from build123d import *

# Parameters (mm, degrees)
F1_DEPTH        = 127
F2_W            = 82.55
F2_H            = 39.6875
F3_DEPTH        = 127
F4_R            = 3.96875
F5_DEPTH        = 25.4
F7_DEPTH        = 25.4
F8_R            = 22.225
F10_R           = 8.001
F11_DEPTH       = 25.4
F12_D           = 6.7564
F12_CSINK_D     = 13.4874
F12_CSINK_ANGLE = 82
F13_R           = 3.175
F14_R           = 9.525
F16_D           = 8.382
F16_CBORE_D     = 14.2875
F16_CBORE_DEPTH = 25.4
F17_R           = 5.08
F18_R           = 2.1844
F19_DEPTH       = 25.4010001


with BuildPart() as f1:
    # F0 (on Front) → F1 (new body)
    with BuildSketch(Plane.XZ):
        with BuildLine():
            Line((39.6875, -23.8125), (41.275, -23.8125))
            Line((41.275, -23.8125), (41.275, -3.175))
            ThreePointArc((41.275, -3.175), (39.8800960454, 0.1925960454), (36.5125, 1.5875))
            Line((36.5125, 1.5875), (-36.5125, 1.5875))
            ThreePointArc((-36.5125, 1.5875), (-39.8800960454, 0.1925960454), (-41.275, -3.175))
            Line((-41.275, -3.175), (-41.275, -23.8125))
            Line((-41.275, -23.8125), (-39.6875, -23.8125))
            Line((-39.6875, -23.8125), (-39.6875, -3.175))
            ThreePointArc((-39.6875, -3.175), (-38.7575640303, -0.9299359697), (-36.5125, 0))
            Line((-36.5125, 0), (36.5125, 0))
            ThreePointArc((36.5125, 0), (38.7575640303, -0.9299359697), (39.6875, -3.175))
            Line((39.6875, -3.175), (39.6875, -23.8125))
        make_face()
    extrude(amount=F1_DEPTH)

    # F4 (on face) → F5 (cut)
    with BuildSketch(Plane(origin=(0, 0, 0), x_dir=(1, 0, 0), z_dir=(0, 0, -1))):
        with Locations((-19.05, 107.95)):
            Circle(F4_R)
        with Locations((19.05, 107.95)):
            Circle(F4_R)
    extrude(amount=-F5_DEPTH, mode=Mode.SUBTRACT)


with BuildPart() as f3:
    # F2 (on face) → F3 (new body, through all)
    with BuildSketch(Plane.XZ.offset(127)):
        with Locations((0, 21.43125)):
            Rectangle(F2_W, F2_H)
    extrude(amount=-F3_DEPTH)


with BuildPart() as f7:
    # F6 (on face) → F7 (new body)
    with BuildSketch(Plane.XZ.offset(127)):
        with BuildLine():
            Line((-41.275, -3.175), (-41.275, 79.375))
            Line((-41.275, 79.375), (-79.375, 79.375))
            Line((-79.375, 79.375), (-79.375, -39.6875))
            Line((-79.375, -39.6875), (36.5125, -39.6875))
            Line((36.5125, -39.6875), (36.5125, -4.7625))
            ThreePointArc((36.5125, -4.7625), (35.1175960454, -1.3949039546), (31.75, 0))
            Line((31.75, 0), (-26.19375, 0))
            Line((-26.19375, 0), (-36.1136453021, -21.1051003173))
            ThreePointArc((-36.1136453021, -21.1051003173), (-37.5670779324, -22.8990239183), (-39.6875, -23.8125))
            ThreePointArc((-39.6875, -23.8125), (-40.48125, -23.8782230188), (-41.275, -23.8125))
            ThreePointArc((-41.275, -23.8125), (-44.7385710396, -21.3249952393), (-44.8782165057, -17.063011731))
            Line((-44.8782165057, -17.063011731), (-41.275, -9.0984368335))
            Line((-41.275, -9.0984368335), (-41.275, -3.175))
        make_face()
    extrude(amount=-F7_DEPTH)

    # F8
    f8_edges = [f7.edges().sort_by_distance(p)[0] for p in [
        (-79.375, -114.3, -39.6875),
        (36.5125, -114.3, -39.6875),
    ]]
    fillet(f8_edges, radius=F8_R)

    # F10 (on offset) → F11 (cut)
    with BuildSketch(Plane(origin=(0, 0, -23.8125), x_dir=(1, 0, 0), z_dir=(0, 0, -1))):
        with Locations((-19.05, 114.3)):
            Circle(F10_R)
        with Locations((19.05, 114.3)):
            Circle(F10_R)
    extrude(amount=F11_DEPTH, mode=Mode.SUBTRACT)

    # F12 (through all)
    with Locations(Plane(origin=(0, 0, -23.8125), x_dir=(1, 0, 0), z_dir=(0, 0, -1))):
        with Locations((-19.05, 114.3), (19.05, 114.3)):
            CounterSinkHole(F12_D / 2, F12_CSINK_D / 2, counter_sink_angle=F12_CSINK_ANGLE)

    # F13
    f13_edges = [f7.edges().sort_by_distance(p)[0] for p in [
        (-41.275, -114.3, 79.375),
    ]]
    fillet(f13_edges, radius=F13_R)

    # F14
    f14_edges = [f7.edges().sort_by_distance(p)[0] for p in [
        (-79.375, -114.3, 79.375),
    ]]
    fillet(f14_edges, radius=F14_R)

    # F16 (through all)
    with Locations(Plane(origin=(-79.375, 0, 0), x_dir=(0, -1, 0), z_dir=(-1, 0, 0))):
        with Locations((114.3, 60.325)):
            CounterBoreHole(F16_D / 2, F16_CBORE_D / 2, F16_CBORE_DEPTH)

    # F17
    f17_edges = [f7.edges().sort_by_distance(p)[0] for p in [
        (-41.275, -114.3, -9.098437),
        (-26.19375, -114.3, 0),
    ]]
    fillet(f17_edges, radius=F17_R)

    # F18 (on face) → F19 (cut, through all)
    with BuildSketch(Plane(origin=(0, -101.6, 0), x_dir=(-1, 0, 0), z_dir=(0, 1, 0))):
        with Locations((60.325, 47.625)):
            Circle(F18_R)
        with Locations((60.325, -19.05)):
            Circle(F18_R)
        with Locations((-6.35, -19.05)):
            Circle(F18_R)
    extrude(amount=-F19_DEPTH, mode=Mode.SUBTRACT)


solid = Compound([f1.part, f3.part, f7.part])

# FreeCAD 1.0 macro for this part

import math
import FreeCAD as App
import Part
import Sketcher
Q = App.Units.Quantity


def edges_at(feature, points):
    """Names of the edges that pass closest to the given points."""
    edges = feature.Shape.Edges
    near = lambda p: min(range(len(edges)), key=lambda i: edges[i].distToShape(Part.Vertex(*p))[0])
    return sorted({f"Edge{near(p) + 1}" for p in points})

doc = App.newDocument("Part")
body = doc.addObject("PartDesign::Body", "Body")

# Sketch on XZ plane
sketch1 = body.newObject("Sketcher::SketchObject", "Sketch")
sketch1.AttachmentSupport = (doc.getObject("XZ_Plane"), [""])
sketch1.MapMode = "FlatFace"
sketch1.addGeometry(Part.LineSegment(App.Vector(39.6875, -23.8125, 0), App.Vector(41.275, -23.8125, 0)), False)
sketch1.addGeometry(Part.LineSegment(App.Vector(41.275, -23.8125, 0), App.Vector(41.275, -3.175, 0)), False)
sketch1.addGeometry(Part.ArcOfCircle(Part.Circle(App.Vector(36.5125, -3.175, 0), App.Vector(0, 0, 1), 4.7625), math.radians(0), math.radians(90)), False)
sketch1.addGeometry(Part.LineSegment(App.Vector(36.5125, 1.5875, 0), App.Vector(-36.5125, 1.5875, 0)), False)
sketch1.addGeometry(Part.ArcOfCircle(Part.Circle(App.Vector(-36.5125, -3.175, 0), App.Vector(0, 0, 1), 4.7625), math.radians(90), math.radians(180)), False)
sketch1.addGeometry(Part.LineSegment(App.Vector(-41.275, -3.175, 0), App.Vector(-41.275, -23.8125, 0)), False)
sketch1.addGeometry(Part.LineSegment(App.Vector(-41.275, -23.8125, 0), App.Vector(-39.6875, -23.8125, 0)), False)
sketch1.addGeometry(Part.LineSegment(App.Vector(-39.6875, -23.8125, 0), App.Vector(-39.6875, -3.175, 0)), False)
sketch1.addGeometry(Part.ArcOfCircle(Part.Circle(App.Vector(-36.5125, -3.175, 0), App.Vector(0, 0, 1), 3.175), math.radians(90), math.radians(180)), False)
sketch1.addGeometry(Part.LineSegment(App.Vector(-36.5125, 0, 0), App.Vector(36.5125, 0, 0)), False)
sketch1.addGeometry(Part.ArcOfCircle(Part.Circle(App.Vector(36.5125, -3.175, 0), App.Vector(0, 0, 1), 3.175), math.radians(0), math.radians(90)), False)
sketch1.addGeometry(Part.LineSegment(App.Vector(39.6875, -3.175, 0), App.Vector(39.6875, -23.8125, 0)), False)
sketch1.addConstraint(Sketcher.Constraint("Coincident", 0, 2, 1, 1))
sketch1.addConstraint(Sketcher.Constraint("Tangent", 1, 2, 2, 1))
sketch1.addConstraint(Sketcher.Constraint("Tangent", 2, 2, 3, 1))
sketch1.addConstraint(Sketcher.Constraint("Tangent", 3, 2, 4, 1))
sketch1.addConstraint(Sketcher.Constraint("Tangent", 4, 2, 5, 1))
sketch1.addConstraint(Sketcher.Constraint("Coincident", 5, 2, 6, 1))
sketch1.addConstraint(Sketcher.Constraint("Coincident", 6, 2, 7, 1))
sketch1.addConstraint(Sketcher.Constraint("Tangent", 7, 2, 8, 2))
sketch1.addConstraint(Sketcher.Constraint("Tangent", 8, 1, 9, 1))
sketch1.addConstraint(Sketcher.Constraint("Tangent", 9, 2, 10, 2))
sketch1.addConstraint(Sketcher.Constraint("Tangent", 10, 1, 11, 1))
sketch1.addConstraint(Sketcher.Constraint("Coincident", 11, 2, 0, 1))
sketch1.addConstraint(Sketcher.Constraint("Horizontal", 0))
sketch1.addConstraint(Sketcher.Constraint("Vertical", 1))
sketch1.addConstraint(Sketcher.Constraint("Horizontal", 3))
sketch1.addConstraint(Sketcher.Constraint("Vertical", 5))
sketch1.addConstraint(Sketcher.Constraint("Horizontal", 6))
sketch1.addConstraint(Sketcher.Constraint("Vertical", 7))
sketch1.addConstraint(Sketcher.Constraint("Horizontal", 9))
sketch1.addConstraint(Sketcher.Constraint("Vertical", 11))
sketch1.addConstraint(Sketcher.Constraint("Coincident", 8, 3, 4, 3))
sketch1.addConstraint(Sketcher.Constraint("Coincident", 10, 3, 2, 3))
sketch1.addConstraint(Sketcher.Constraint("Equal", 2, 4))
sketch1.addConstraint(Sketcher.Constraint("Symmetric", 8, 1, 9, 2, -1, 1))
sketch1.addConstraint(Sketcher.Constraint("Horizontal", 0, 2, 5, 2))
sketch1.addConstraint(Sketcher.Constraint("Radius", 2, Q("0.1875 in")))
sketch1.addConstraint(Sketcher.Constraint("Radius", 8, Q("0.125 in")))
sketch1.addConstraint(Sketcher.Constraint("DistanceY", 0, 2, 2, 2, Q("1 in")))
sketch1.addConstraint(Sketcher.Constraint("DistanceX", 3, 2, 3, 1, Q("2.875 in")))
pad1 = body.newObject("PartDesign::Pad", "Pad")
pad1.Profile = sketch1
pad1.Length = Q("5 in")

# Sketch on XY plane
sketch2 = body.newObject("Sketcher::SketchObject", "Sketch001")
sketch2.AttachmentSupport = (doc.getObject("XY_Plane"), [""])
sketch2.MapMode = "FlatFace"
sketch2.addGeometry(Part.Circle(App.Vector(-19.05, -107.95, 0), App.Vector(0, 0, 1), 3.96875), False)
sketch2.addGeometry(Part.Circle(App.Vector(19.05, -107.95, 0), App.Vector(0, 0, 1), 3.96875), False)
sketch2.addConstraint(Sketcher.Constraint("Equal", 0, 1))
sketch2.addConstraint(Sketcher.Constraint("Symmetric", 0, 3, 1, 3, -2))
sketch2.addConstraint(Sketcher.Constraint("Diameter", 0, Q("0.3125 in")))
sketch2.addConstraint(Sketcher.Constraint("DistanceX", 0, 3, 1, 3, Q("1.5 in")))
sketch2.addConstraint(Sketcher.Constraint("DistanceY", 0, 3, -1, 1, Q("4.25 in")))
pocket1 = body.newObject("PartDesign::Pocket", "Pocket")
pocket1.Profile = sketch2
pocket1.Length = Q("1 in")
pocket1.Reversed = True
body2 = doc.addObject("PartDesign::Body", "Body001")

# Sketch on XZ plane
sketch3 = body2.newObject("Sketcher::SketchObject", "Sketch002")
sketch3.AttachmentSupport = (doc.getObject("XZ_Plane001"), [""])
sketch3.MapMode = "FlatFace"
sketch3.AttachmentOffset = App.Placement(App.Vector(0, 0, 5 * 25.4), App.Rotation())
sketch3.addGeometry(Part.LineSegment(App.Vector(-41.275, 41.275, 0), App.Vector(-41.275, 1.5875, 0)), False)
sketch3.addGeometry(Part.LineSegment(App.Vector(-41.275, 1.5875, 0), App.Vector(41.275, 1.5875, 0)), False)
sketch3.addGeometry(Part.LineSegment(App.Vector(41.275, 1.5875, 0), App.Vector(41.275, 41.275, 0)), False)
sketch3.addGeometry(Part.LineSegment(App.Vector(41.275, 41.275, 0), App.Vector(-41.275, 41.275, 0)), False)
sketch3.addConstraint(Sketcher.Constraint("Coincident", 0, 2, 1, 1))
sketch3.addConstraint(Sketcher.Constraint("Coincident", 1, 2, 2, 1))
sketch3.addConstraint(Sketcher.Constraint("Coincident", 2, 2, 3, 1))
sketch3.addConstraint(Sketcher.Constraint("Coincident", 3, 2, 0, 1))
sketch3.addConstraint(Sketcher.Constraint("Vertical", 0))
sketch3.addConstraint(Sketcher.Constraint("Horizontal", 1))
sketch3.addConstraint(Sketcher.Constraint("Vertical", 2))
sketch3.addConstraint(Sketcher.Constraint("Horizontal", 3))
sketch3.addConstraint(Sketcher.Constraint("DistanceX", 1, 1, 1, 2, Q("3.25 in")))
sketch3.addConstraint(Sketcher.Constraint("DistanceY", 0, 2, 0, 1, Q("1.5625 in")))
sketch3.addConstraint(Sketcher.Constraint("DistanceX", 0, 2, -1, 1, Q("1.625 in")))
sketch3.addConstraint(Sketcher.Constraint("DistanceY", -1, 1, 0, 2, Q("0.0625 in")))
pad2 = body2.newObject("PartDesign::Pad", "Pad001")
pad2.Profile = sketch3
pad2.Length = Q("5 in")
pad2.Reversed = True
body3 = doc.addObject("PartDesign::Body", "Body002")

# Sketch on XZ plane
sketch4 = body3.newObject("Sketcher::SketchObject", "Sketch003")
sketch4.AttachmentSupport = (doc.getObject("XZ_Plane002"), [""])
sketch4.MapMode = "FlatFace"
sketch4.AttachmentOffset = App.Placement(App.Vector(0, 0, 5 * 25.4), App.Rotation())
sketch4.addGeometry(Part.LineSegment(App.Vector(-41.275, 79.375, 0), App.Vector(-79.375, 79.375, 0)), False)
sketch4.addGeometry(Part.LineSegment(App.Vector(-79.375, 79.375, 0), App.Vector(-79.375, -39.6875, 0)), False)
sketch4.addGeometry(Part.LineSegment(App.Vector(-79.375, -39.6875, 0), App.Vector(36.5125, -39.6875, 0)), False)
sketch4.addGeometry(Part.LineSegment(App.Vector(36.5125, -39.6875, 0), App.Vector(36.5125, -4.7625, 0)), False)
sketch4.addGeometry(Part.ArcOfCircle(Part.Circle(App.Vector(31.75, -4.7625, 0), App.Vector(0, 0, 1), 4.7625), math.radians(0), math.radians(90)), False)
sketch4.addGeometry(Part.LineSegment(App.Vector(31.75, 0, 0), App.Vector(-26.19375, 0, 0)), False)
sketch4.addGeometry(Part.LineSegment(App.Vector(-26.19375, 0, 0), App.Vector(-36.113645, -21.1051, 0)), False)
sketch4.addGeometry(Part.ArcOfCircle(Part.Circle(App.Vector(-40.48125, -19.052223, 0), App.Vector(0, 0, 1), 4.826), math.radians(-80.533339), math.radians(-25.174632)), False)
sketch4.addGeometry(Part.ArcOfCircle(Part.Circle(App.Vector(-40.48125, -19.052223, 0), App.Vector(0, 0, 1), 4.826), math.radians(-99.466661), math.radians(-80.533339)), False)
sketch4.addGeometry(Part.ArcOfCircle(Part.Circle(App.Vector(-40.48125, -19.052223, 0), App.Vector(0, 0, 1), 4.826), math.radians(155.657748), math.radians(260.533339)), False)
sketch4.addGeometry(Part.LineSegment(App.Vector(-44.878217, -17.063012, 0), App.Vector(-41.275, -9.098437, 0)), False)
sketch4.addGeometry(Part.LineSegment(App.Vector(-41.275, -9.098437, 0), App.Vector(-41.275, 79.375, 0)), False)
sketch4.addConstraint(Sketcher.Constraint("Coincident", 0, 2, 1, 1))
sketch4.addConstraint(Sketcher.Constraint("Coincident", 1, 2, 2, 1))
sketch4.addConstraint(Sketcher.Constraint("Coincident", 2, 2, 3, 1))
sketch4.addConstraint(Sketcher.Constraint("Tangent", 3, 2, 4, 1))
sketch4.addConstraint(Sketcher.Constraint("Tangent", 4, 2, 5, 1))
sketch4.addConstraint(Sketcher.Constraint("Coincident", 5, 2, 6, 1))
sketch4.addConstraint(Sketcher.Constraint("Tangent", 6, 2, 7, 2))
sketch4.addConstraint(Sketcher.Constraint("Tangent", 7, 1, 8, 2))
sketch4.addConstraint(Sketcher.Constraint("Tangent", 8, 1, 9, 2))
sketch4.addConstraint(Sketcher.Constraint("Tangent", 9, 1, 10, 1))
sketch4.addConstraint(Sketcher.Constraint("Coincident", 10, 2, 11, 1))
sketch4.addConstraint(Sketcher.Constraint("Coincident", 11, 2, 0, 1))
sketch4.addConstraint(Sketcher.Constraint("Horizontal", 0))
sketch4.addConstraint(Sketcher.Constraint("Vertical", 1))
sketch4.addConstraint(Sketcher.Constraint("Horizontal", 2))
sketch4.addConstraint(Sketcher.Constraint("Vertical", 3))
sketch4.addConstraint(Sketcher.Constraint("Horizontal", 5))
sketch4.addConstraint(Sketcher.Constraint("Vertical", 11))
sketch4.addConstraint(Sketcher.Constraint("Coincident", 9, 3, 7, 3))
sketch4.addConstraint(Sketcher.Constraint("PointOnObject", 4, 2, -1))
sketch4.addConstraint(Sketcher.Constraint("Horizontal", 7, 1, 8, 1))
sketch4.addConstraint(Sketcher.Constraint("Vertical", 8, 1, 10, 2))
sketch4.addConstraint(Sketcher.Constraint("Radius", 7, Q("0.19 in")))
sketch4.addConstraint(Sketcher.Constraint("DistanceX", 0, 2, 0, 1, Q("1.5 in")))
sketch4.addConstraint(Sketcher.Constraint("Radius", 4, Q("0.1875 in")))
sketch4.addConstraint(Sketcher.Constraint("DistanceX", 2, 1, 2, 2, Q("4.5625 in")))
sketch4.addConstraint(Sketcher.Constraint("DistanceX", 5, 2, 5, 1, Q("2.28125 in")))
sketch4.addConstraint(Sketcher.Constraint("DistanceY", 1, 2, 1, 1, Q("4.6875 in")))
sketch4.addConstraint(Sketcher.Constraint("DistanceY", 3, 1, 3, 2, Q("1.375 in")))
sketch4.addConstraint(Sketcher.Constraint("DistanceX", -1, 1, 4, 3, Q("1.25 in")))
sketch4.addConstraint(Sketcher.Constraint("DistanceX", 7, 3, -1, 1, Q("1.59375 in")))
sketch4.addConstraint(Sketcher.Constraint("DistanceY", 7, 1, -1, 1, Q("0.9375 in")))
sketch4.addConstraint(Sketcher.Constraint("DistanceY", 11, 1, 11, 2, 88.473437))
pad3 = body3.newObject("PartDesign::Pad", "Pad002")
pad3.Profile = sketch4
pad3.Length = Q("1 in")
pad3.Reversed = True
doc.recompute()

fillet = body3.newObject("PartDesign::Fillet", "Fillet")
fillet.Base = (pad3, edges_at(pad3, [(-79.375, -114.3, -39.688), (36.513, -114.3, -39.688)]))
fillet.Radius = Q("0.875 in")

# Sketch on XY plane
sketch5 = body3.newObject("Sketcher::SketchObject", "Sketch004")
sketch5.AttachmentSupport = (doc.getObject("XY_Plane002"), [""])
sketch5.MapMode = "FlatFace"
sketch5.AttachmentOffset = App.Placement(App.Vector(0, 0, -0.9375 * 25.4), App.Rotation())
sketch5.addGeometry(Part.Circle(App.Vector(-19.05, -114.3, 0), App.Vector(0, 0, 1), 8.001), False)
sketch5.addGeometry(Part.Circle(App.Vector(19.05, -114.3, 0), App.Vector(0, 0, 1), 8.001), False)
sketch5.addConstraint(Sketcher.Constraint("Equal", 0, 1))
sketch5.addConstraint(Sketcher.Constraint("Symmetric", 0, 3, 1, 3, -2))
sketch5.addConstraint(Sketcher.Constraint("Diameter", 0, Q("0.63 in")))
sketch5.addConstraint(Sketcher.Constraint("DistanceY", 0, 3, -1, 1, Q("4.5 in")))
sketch5.addConstraint(Sketcher.Constraint("DistanceX", 0, 3, 1, 3, Q("1.5 in")))
pocket2 = body3.newObject("PartDesign::Pocket", "Pocket001")
pocket2.Profile = sketch5
pocket2.Length = Q("1 in")

# Sketch on XY plane
sketch6 = body3.newObject("Sketcher::SketchObject", "Sketch005")
sketch6.AttachmentSupport = (doc.getObject("XY_Plane002"), [""])
sketch6.MapMode = "FlatFace"
sketch6.AttachmentOffset = App.Placement(App.Vector(0, 0, -0.9375 * 25.4), App.Rotation())
sketch6.addGeometry(Part.Circle(App.Vector(-19.05, -114.3, 0), App.Vector(0, 0, 1), 3.3782), False)
sketch6.addGeometry(Part.Circle(App.Vector(19.05, -114.3, 0), App.Vector(0, 0, 1), 3.3782), False)
sketch6.addConstraint(Sketcher.Constraint("Equal", 0, 1))
sketch6.addConstraint(Sketcher.Constraint("Symmetric", 0, 3, 1, 3, -2))
sketch6.addConstraint(Sketcher.Constraint("Diameter", 0, Q("0.266 in")))
sketch6.addConstraint(Sketcher.Constraint("DistanceY", 0, 3, -1, 1, Q("4.5 in")))
sketch6.addConstraint(Sketcher.Constraint("DistanceX", 0, 3, 1, 3, Q("1.5 in")))
doc.recompute()
hole = body3.newObject("PartDesign::Hole", "Hole")
hole.Profile = sketch6
hole.ThreadType = "None"
hole.Diameter = Q("0.266 in")
hole.DepthType = "ThroughAll"
hole.HoleCutType = "Countersink"
hole.HoleCutDiameter = Q("0.531 in")
hole.HoleCutCountersinkAngle = 82
hole.Reversed = True
doc.recompute()

fillet2 = body3.newObject("PartDesign::Fillet", "Fillet001")
fillet2.Base = (hole, edges_at(hole, [(-41.275, -114.3, 79.375)]))
fillet2.Radius = Q("0.125 in")
doc.recompute()

fillet3 = body3.newObject("PartDesign::Fillet", "Fillet002")
fillet3.Base = (fillet2, edges_at(fillet2, [(-79.375, -114.3, 79.375)]))
fillet3.Radius = Q("0.375 in")

# Sketch on YZ plane
sketch7 = body3.newObject("Sketcher::SketchObject", "Sketch006")
sketch7.AttachmentSupport = (doc.getObject("YZ_Plane002"), [""])
sketch7.MapMode = "FlatFace"
sketch7.AttachmentOffset = App.Placement(App.Vector(0, 0, -3.125 * 25.4), App.Rotation())
sketch7.addGeometry(Part.Circle(App.Vector(-114.3, 60.325, 0), App.Vector(0, 0, 1), 4.191), False)
sketch7.addConstraint(Sketcher.Constraint("Diameter", 0, Q("0.33 in")))
sketch7.addConstraint(Sketcher.Constraint("DistanceX", 0, 3, -1, 1, Q("4.5 in")))
sketch7.addConstraint(Sketcher.Constraint("DistanceY", -1, 1, 0, 3, Q("2.375 in")))
doc.recompute()
hole2 = body3.newObject("PartDesign::Hole", "Hole001")
hole2.Profile = sketch7
hole2.ThreadType = "None"
hole2.Diameter = Q("0.33 in")
hole2.DepthType = "ThroughAll"
hole2.HoleCutType = "Counterbore"
hole2.HoleCutDiameter = Q("0.5625 in")
hole2.HoleCutDepth = Q("1 in")
hole2.Reversed = True
doc.recompute()

fillet4 = body3.newObject("PartDesign::Fillet", "Fillet003")
fillet4.Base = (hole2, edges_at(hole2, [(-41.275, -114.3, -9.098), (-26.194, -114.3, 0)]))
fillet4.Radius = Q("0.2 in")

# Sketch on XZ plane
sketch8 = body3.newObject("Sketcher::SketchObject", "Sketch007")
sketch8.AttachmentSupport = (doc.getObject("XZ_Plane002"), [""])
sketch8.MapMode = "FlatFace"
sketch8.AttachmentOffset = App.Placement(App.Vector(0, 0, 4 * 25.4), App.Rotation())
sketch8.addGeometry(Part.Circle(App.Vector(-60.325, 47.625, 0), App.Vector(0, 0, 1), 2.1844), False)
sketch8.addGeometry(Part.Circle(App.Vector(-60.325, -19.05, 0), App.Vector(0, 0, 1), 2.1844), False)
sketch8.addGeometry(Part.Circle(App.Vector(6.35, -19.05, 0), App.Vector(0, 0, 1), 2.1844), False)
sketch8.addConstraint(Sketcher.Constraint("Equal", 0, 1))
sketch8.addConstraint(Sketcher.Constraint("Equal", 1, 2))
sketch8.addConstraint(Sketcher.Constraint("Horizontal", 1, 3, 2, 3))
sketch8.addConstraint(Sketcher.Constraint("Vertical", 0, 3, 1, 3))
sketch8.addConstraint(Sketcher.Constraint("Diameter", 0, Q("0.172 in")))
sketch8.addConstraint(Sketcher.Constraint("DistanceY", 1, 3, -1, 1, Q("0.75 in")))
sketch8.addConstraint(Sketcher.Constraint("DistanceX", -1, 1, 2, 3, Q("0.25 in")))
sketch8.addConstraint(Sketcher.Constraint("DistanceX", 0, 3, -1, 1, Q("2.375 in")))
sketch8.addConstraint(Sketcher.Constraint("DistanceY", -1, 1, 0, 3, Q("1.875 in")))
pocket3 = body3.newObject("PartDesign::Pocket", "Pocket002")
pocket3.Profile = sketch8
pocket3.Type = "ThroughAll"
pocket3.Reversed = True

doc.recompute()
